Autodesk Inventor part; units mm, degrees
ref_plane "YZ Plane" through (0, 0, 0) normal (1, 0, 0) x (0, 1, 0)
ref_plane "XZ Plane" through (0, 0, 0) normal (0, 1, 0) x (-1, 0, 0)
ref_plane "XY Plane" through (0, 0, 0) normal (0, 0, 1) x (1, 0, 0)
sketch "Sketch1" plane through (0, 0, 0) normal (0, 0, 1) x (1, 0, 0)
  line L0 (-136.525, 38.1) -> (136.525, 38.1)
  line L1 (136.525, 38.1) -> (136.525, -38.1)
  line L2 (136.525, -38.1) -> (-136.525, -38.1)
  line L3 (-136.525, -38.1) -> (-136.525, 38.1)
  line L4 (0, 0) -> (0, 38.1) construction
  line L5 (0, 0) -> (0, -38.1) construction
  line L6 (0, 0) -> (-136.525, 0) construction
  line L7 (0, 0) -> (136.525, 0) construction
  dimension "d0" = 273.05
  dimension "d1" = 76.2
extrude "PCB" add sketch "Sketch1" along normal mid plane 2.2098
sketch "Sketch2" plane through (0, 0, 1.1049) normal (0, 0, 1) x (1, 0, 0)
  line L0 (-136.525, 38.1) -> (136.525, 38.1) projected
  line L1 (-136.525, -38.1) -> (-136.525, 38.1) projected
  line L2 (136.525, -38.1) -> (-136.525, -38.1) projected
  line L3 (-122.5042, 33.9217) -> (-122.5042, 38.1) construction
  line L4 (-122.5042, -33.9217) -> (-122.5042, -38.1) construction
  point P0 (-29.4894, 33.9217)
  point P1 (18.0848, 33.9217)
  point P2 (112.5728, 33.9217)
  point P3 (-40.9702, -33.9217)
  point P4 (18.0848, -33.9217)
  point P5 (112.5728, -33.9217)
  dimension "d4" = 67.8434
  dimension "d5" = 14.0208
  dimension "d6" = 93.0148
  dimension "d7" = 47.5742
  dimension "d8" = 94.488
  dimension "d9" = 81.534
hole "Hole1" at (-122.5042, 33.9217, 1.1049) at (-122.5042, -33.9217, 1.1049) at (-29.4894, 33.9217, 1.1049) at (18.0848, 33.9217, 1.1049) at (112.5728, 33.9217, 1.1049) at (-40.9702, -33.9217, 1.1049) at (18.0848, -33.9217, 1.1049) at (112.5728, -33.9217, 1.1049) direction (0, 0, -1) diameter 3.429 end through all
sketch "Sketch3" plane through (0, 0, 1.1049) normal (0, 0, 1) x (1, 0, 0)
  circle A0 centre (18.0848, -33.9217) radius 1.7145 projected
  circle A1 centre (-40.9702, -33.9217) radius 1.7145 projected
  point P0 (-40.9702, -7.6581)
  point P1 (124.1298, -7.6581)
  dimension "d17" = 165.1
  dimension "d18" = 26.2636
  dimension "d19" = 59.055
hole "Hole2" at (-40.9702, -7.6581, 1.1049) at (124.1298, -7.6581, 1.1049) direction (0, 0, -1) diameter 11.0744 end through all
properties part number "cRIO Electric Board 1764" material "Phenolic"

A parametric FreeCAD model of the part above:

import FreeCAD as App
import Part
import Sketcher
from FreeCAD import Vector
Q = App.Units.Quantity

doc = App.newDocument("Part")
params = doc.addObject("Spreadsheet::Sheet", "Params")
for row, (alias, value) in enumerate([
    ("sketch1_height", "3 in"),
    ("sketch1_width", "10.75 in"),
    ("pad1_length", "0.087 in"),
    ("sketch2_diameter", "0.135 in"),
    ("hole_diameter", "0.135 in"),
    ("sketch3_diameter", "0.436 in"),
    ("hole2_diameter", "0.436 in"),
], start=1):
    params.set(f"A{row}", alias)
    params.set(f"B{row}", "=" + value)
    params.setAlias(f"B{row}", alias)

body = doc.addObject("PartDesign::Body", "Body")

sketch1 = body.newObject("Sketcher::SketchObject", "Sketch")
sketch1.AttachmentSupport = (doc.getObject("XY_Plane"), [""])
sketch1.MapMode = "FlatFace"
sketch1.addGeometry(Part.LineSegment(Vector(137, 38, 0), Vector(-137, 38, 0)), False)
sketch1.addGeometry(Part.LineSegment(Vector(-137, 38, 0), Vector(-137, -38, 0)), False)
sketch1.addGeometry(Part.LineSegment(Vector(-137, -38, 0), Vector(137, -38, 0)), False)
sketch1.addGeometry(Part.LineSegment(Vector(137, -38, 0), Vector(137, 38, 0)), False)
sketch1.addConstraint(Sketcher.Constraint("Coincident", 0, 2, 1, 1))
sketch1.addConstraint(Sketcher.Constraint("Coincident", 1, 2, 2, 1))
sketch1.addConstraint(Sketcher.Constraint("Coincident", 2, 2, 3, 1))
sketch1.addConstraint(Sketcher.Constraint("Coincident", 3, 2, 0, 1))
sketch1.addConstraint(Sketcher.Constraint("Horizontal", 0))
sketch1.addConstraint(Sketcher.Constraint("Vertical", 1))
sketch1.addConstraint(Sketcher.Constraint("Horizontal", 2))
sketch1.addConstraint(Sketcher.Constraint("Vertical", 3))
sketch1.addConstraint(Sketcher.Constraint("Symmetric", 0, 2, 2, 2, -1, 1))
sketch1.addConstraint(Sketcher.Constraint("DistanceY", 1, 2, 1, 1, Q("3 in")))
sketch1.addConstraint(Sketcher.Constraint("DistanceX", 0, 2, 0, 1, Q("10.75 in")))
sketch1.setExpression("Constraints[9]", "Params.sketch1_height")
sketch1.setExpression("Constraints[10]", "Params.sketch1_width")
pad1 = body.newObject("PartDesign::Pad", "Pad")
pad1.Profile = sketch1
pad1.setExpression("Length", "Params.pad1_length")
pad1.Midplane = True

sketch2 = body.newObject("Sketcher::SketchObject", "Sketch001")
sketch2.AttachmentSupport = (doc.getObject("XY_Plane"), [""])
sketch2.MapMode = "FlatFace"
sketch2.AttachmentOffset = App.Placement(Vector(0, 0, 0.0435 * 25.4), App.Rotation())
sketch2.addGeometry(Part.Circle(Vector(-122.5, 33.9, 0), Vector(0, 0, 1), 1.7), False)
sketch2.addGeometry(Part.Circle(Vector(-122.5, -33.9, 0), Vector(0, 0, 1), 1.7), False)
sketch2.addGeometry(Part.Circle(Vector(-29.5, 33.9, 0), Vector(0, 0, 1), 1.7), False)
sketch2.addGeometry(Part.Circle(Vector(18.1, 33.9, 0), Vector(0, 0, 1), 1.7), False)
sketch2.addGeometry(Part.Circle(Vector(112.6, 33.9, 0), Vector(0, 0, 1), 1.7), False)
sketch2.addGeometry(Part.Circle(Vector(-41, -33.9, 0), Vector(0, 0, 1), 1.7), False)
sketch2.addGeometry(Part.Circle(Vector(18.1, -33.9, 0), Vector(0, 0, 1), 1.7), False)
sketch2.addGeometry(Part.Circle(Vector(112.6, -33.9, 0), Vector(0, 0, 1), 1.7), False)
sketch2.addConstraint(Sketcher.Constraint("Equal", 0, 1))
sketch2.addConstraint(Sketcher.Constraint("Equal", 1, 2))
sketch2.addConstraint(Sketcher.Constraint("Equal", 2, 3))
sketch2.addConstraint(Sketcher.Constraint("Equal", 3, 4))
sketch2.addConstraint(Sketcher.Constraint("Equal", 4, 5))
sketch2.addConstraint(Sketcher.Constraint("Equal", 5, 6))
sketch2.addConstraint(Sketcher.Constraint("Equal", 6, 7))
sketch2.addConstraint(Sketcher.Constraint("Symmetric", 0, 3, 1, 3, -1))
sketch2.addConstraint(Sketcher.Constraint("Symmetric", 3, 3, 6, 3, -1))
sketch2.addConstraint(Sketcher.Constraint("Symmetric", 4, 3, 7, 3, -1))
sketch2.addConstraint(Sketcher.Constraint("Horizontal", 0, 3, 2, 3))
sketch2.addConstraint(Sketcher.Constraint("Horizontal", 2, 3, 3, 3))
sketch2.addConstraint(Sketcher.Constraint("Horizontal", 3, 3, 4, 3))
sketch2.addConstraint(Sketcher.Constraint("Horizontal", 1, 3, 5, 3))
sketch2.addConstraint(Sketcher.Constraint("Diameter", 0, Q("0.135 in")))
sketch2.addConstraint(Sketcher.Constraint("DistanceX", 3, 3, 4, 3, Q("3.72 in")))
sketch2.addConstraint(Sketcher.Constraint("DistanceX", 1, 3, 5, 3, Q("3.21 in")))
sketch2.addConstraint(Sketcher.Constraint("DistanceX", 0, 3, -1, 1, Q("4.823 in")))
sketch2.addConstraint(Sketcher.Constraint("DistanceX", 2, 3, -1, 1, Q("1.161 in")))
sketch2.addConstraint(Sketcher.Constraint("DistanceX", -1, 1, 3, 3, Q("0.712 in")))
sketch2.addConstraint(Sketcher.Constraint("DistanceY", 1, 3, 0, 3, Q("2.671 in")))
sketch2.setExpression("Constraints[14]", "Params.sketch2_diameter")
doc.recompute()
hole = body.newObject("PartDesign::Hole", "Hole")
hole.Profile = sketch2
hole.ThreadType = "None"
hole.setExpression("Diameter", "Params.hole_diameter")
hole.DepthType = "ThroughAll"

sketch3 = body.newObject("Sketcher::SketchObject", "Sketch002")
sketch3.AttachmentSupport = (doc.getObject("XY_Plane"), [""])
sketch3.MapMode = "FlatFace"
sketch3.AttachmentOffset = App.Placement(Vector(0, 0, 0.0435 * 25.4), App.Rotation())
sketch3.addGeometry(Part.Circle(Vector(-41, -8, 0), Vector(0, 0, 1), 6), False)
sketch3.addGeometry(Part.Circle(Vector(124, -8, 0), Vector(0, 0, 1), 6), False)
sketch3.addConstraint(Sketcher.Constraint("Equal", 0, 1))
sketch3.addConstraint(Sketcher.Constraint("Horizontal", 0, 3, 1, 3))
sketch3.addConstraint(Sketcher.Constraint("Diameter", 0, Q("0.436 in")))
sketch3.addConstraint(Sketcher.Constraint("DistanceX", 0, 3, 1, 3, Q("6.5 in")))
sketch3.addConstraint(Sketcher.Constraint("DistanceX", 0, 3, -1, 1, Q("1.613 in")))
sketch3.addConstraint(Sketcher.Constraint("DistanceY", 0, 3, -1, 1, Q("0.3015 in")))
sketch3.setExpression("Constraints[2]", "Params.sketch3_diameter")
doc.recompute()
hole2 = body.newObject("PartDesign::Hole", "Hole001")
hole2.Profile = sketch3
hole2.ThreadType = "None"
hole2.setExpression("Diameter", "Params.hole2_diameter")
hole2.DepthType = "ThroughAll"

doc.recompute()
